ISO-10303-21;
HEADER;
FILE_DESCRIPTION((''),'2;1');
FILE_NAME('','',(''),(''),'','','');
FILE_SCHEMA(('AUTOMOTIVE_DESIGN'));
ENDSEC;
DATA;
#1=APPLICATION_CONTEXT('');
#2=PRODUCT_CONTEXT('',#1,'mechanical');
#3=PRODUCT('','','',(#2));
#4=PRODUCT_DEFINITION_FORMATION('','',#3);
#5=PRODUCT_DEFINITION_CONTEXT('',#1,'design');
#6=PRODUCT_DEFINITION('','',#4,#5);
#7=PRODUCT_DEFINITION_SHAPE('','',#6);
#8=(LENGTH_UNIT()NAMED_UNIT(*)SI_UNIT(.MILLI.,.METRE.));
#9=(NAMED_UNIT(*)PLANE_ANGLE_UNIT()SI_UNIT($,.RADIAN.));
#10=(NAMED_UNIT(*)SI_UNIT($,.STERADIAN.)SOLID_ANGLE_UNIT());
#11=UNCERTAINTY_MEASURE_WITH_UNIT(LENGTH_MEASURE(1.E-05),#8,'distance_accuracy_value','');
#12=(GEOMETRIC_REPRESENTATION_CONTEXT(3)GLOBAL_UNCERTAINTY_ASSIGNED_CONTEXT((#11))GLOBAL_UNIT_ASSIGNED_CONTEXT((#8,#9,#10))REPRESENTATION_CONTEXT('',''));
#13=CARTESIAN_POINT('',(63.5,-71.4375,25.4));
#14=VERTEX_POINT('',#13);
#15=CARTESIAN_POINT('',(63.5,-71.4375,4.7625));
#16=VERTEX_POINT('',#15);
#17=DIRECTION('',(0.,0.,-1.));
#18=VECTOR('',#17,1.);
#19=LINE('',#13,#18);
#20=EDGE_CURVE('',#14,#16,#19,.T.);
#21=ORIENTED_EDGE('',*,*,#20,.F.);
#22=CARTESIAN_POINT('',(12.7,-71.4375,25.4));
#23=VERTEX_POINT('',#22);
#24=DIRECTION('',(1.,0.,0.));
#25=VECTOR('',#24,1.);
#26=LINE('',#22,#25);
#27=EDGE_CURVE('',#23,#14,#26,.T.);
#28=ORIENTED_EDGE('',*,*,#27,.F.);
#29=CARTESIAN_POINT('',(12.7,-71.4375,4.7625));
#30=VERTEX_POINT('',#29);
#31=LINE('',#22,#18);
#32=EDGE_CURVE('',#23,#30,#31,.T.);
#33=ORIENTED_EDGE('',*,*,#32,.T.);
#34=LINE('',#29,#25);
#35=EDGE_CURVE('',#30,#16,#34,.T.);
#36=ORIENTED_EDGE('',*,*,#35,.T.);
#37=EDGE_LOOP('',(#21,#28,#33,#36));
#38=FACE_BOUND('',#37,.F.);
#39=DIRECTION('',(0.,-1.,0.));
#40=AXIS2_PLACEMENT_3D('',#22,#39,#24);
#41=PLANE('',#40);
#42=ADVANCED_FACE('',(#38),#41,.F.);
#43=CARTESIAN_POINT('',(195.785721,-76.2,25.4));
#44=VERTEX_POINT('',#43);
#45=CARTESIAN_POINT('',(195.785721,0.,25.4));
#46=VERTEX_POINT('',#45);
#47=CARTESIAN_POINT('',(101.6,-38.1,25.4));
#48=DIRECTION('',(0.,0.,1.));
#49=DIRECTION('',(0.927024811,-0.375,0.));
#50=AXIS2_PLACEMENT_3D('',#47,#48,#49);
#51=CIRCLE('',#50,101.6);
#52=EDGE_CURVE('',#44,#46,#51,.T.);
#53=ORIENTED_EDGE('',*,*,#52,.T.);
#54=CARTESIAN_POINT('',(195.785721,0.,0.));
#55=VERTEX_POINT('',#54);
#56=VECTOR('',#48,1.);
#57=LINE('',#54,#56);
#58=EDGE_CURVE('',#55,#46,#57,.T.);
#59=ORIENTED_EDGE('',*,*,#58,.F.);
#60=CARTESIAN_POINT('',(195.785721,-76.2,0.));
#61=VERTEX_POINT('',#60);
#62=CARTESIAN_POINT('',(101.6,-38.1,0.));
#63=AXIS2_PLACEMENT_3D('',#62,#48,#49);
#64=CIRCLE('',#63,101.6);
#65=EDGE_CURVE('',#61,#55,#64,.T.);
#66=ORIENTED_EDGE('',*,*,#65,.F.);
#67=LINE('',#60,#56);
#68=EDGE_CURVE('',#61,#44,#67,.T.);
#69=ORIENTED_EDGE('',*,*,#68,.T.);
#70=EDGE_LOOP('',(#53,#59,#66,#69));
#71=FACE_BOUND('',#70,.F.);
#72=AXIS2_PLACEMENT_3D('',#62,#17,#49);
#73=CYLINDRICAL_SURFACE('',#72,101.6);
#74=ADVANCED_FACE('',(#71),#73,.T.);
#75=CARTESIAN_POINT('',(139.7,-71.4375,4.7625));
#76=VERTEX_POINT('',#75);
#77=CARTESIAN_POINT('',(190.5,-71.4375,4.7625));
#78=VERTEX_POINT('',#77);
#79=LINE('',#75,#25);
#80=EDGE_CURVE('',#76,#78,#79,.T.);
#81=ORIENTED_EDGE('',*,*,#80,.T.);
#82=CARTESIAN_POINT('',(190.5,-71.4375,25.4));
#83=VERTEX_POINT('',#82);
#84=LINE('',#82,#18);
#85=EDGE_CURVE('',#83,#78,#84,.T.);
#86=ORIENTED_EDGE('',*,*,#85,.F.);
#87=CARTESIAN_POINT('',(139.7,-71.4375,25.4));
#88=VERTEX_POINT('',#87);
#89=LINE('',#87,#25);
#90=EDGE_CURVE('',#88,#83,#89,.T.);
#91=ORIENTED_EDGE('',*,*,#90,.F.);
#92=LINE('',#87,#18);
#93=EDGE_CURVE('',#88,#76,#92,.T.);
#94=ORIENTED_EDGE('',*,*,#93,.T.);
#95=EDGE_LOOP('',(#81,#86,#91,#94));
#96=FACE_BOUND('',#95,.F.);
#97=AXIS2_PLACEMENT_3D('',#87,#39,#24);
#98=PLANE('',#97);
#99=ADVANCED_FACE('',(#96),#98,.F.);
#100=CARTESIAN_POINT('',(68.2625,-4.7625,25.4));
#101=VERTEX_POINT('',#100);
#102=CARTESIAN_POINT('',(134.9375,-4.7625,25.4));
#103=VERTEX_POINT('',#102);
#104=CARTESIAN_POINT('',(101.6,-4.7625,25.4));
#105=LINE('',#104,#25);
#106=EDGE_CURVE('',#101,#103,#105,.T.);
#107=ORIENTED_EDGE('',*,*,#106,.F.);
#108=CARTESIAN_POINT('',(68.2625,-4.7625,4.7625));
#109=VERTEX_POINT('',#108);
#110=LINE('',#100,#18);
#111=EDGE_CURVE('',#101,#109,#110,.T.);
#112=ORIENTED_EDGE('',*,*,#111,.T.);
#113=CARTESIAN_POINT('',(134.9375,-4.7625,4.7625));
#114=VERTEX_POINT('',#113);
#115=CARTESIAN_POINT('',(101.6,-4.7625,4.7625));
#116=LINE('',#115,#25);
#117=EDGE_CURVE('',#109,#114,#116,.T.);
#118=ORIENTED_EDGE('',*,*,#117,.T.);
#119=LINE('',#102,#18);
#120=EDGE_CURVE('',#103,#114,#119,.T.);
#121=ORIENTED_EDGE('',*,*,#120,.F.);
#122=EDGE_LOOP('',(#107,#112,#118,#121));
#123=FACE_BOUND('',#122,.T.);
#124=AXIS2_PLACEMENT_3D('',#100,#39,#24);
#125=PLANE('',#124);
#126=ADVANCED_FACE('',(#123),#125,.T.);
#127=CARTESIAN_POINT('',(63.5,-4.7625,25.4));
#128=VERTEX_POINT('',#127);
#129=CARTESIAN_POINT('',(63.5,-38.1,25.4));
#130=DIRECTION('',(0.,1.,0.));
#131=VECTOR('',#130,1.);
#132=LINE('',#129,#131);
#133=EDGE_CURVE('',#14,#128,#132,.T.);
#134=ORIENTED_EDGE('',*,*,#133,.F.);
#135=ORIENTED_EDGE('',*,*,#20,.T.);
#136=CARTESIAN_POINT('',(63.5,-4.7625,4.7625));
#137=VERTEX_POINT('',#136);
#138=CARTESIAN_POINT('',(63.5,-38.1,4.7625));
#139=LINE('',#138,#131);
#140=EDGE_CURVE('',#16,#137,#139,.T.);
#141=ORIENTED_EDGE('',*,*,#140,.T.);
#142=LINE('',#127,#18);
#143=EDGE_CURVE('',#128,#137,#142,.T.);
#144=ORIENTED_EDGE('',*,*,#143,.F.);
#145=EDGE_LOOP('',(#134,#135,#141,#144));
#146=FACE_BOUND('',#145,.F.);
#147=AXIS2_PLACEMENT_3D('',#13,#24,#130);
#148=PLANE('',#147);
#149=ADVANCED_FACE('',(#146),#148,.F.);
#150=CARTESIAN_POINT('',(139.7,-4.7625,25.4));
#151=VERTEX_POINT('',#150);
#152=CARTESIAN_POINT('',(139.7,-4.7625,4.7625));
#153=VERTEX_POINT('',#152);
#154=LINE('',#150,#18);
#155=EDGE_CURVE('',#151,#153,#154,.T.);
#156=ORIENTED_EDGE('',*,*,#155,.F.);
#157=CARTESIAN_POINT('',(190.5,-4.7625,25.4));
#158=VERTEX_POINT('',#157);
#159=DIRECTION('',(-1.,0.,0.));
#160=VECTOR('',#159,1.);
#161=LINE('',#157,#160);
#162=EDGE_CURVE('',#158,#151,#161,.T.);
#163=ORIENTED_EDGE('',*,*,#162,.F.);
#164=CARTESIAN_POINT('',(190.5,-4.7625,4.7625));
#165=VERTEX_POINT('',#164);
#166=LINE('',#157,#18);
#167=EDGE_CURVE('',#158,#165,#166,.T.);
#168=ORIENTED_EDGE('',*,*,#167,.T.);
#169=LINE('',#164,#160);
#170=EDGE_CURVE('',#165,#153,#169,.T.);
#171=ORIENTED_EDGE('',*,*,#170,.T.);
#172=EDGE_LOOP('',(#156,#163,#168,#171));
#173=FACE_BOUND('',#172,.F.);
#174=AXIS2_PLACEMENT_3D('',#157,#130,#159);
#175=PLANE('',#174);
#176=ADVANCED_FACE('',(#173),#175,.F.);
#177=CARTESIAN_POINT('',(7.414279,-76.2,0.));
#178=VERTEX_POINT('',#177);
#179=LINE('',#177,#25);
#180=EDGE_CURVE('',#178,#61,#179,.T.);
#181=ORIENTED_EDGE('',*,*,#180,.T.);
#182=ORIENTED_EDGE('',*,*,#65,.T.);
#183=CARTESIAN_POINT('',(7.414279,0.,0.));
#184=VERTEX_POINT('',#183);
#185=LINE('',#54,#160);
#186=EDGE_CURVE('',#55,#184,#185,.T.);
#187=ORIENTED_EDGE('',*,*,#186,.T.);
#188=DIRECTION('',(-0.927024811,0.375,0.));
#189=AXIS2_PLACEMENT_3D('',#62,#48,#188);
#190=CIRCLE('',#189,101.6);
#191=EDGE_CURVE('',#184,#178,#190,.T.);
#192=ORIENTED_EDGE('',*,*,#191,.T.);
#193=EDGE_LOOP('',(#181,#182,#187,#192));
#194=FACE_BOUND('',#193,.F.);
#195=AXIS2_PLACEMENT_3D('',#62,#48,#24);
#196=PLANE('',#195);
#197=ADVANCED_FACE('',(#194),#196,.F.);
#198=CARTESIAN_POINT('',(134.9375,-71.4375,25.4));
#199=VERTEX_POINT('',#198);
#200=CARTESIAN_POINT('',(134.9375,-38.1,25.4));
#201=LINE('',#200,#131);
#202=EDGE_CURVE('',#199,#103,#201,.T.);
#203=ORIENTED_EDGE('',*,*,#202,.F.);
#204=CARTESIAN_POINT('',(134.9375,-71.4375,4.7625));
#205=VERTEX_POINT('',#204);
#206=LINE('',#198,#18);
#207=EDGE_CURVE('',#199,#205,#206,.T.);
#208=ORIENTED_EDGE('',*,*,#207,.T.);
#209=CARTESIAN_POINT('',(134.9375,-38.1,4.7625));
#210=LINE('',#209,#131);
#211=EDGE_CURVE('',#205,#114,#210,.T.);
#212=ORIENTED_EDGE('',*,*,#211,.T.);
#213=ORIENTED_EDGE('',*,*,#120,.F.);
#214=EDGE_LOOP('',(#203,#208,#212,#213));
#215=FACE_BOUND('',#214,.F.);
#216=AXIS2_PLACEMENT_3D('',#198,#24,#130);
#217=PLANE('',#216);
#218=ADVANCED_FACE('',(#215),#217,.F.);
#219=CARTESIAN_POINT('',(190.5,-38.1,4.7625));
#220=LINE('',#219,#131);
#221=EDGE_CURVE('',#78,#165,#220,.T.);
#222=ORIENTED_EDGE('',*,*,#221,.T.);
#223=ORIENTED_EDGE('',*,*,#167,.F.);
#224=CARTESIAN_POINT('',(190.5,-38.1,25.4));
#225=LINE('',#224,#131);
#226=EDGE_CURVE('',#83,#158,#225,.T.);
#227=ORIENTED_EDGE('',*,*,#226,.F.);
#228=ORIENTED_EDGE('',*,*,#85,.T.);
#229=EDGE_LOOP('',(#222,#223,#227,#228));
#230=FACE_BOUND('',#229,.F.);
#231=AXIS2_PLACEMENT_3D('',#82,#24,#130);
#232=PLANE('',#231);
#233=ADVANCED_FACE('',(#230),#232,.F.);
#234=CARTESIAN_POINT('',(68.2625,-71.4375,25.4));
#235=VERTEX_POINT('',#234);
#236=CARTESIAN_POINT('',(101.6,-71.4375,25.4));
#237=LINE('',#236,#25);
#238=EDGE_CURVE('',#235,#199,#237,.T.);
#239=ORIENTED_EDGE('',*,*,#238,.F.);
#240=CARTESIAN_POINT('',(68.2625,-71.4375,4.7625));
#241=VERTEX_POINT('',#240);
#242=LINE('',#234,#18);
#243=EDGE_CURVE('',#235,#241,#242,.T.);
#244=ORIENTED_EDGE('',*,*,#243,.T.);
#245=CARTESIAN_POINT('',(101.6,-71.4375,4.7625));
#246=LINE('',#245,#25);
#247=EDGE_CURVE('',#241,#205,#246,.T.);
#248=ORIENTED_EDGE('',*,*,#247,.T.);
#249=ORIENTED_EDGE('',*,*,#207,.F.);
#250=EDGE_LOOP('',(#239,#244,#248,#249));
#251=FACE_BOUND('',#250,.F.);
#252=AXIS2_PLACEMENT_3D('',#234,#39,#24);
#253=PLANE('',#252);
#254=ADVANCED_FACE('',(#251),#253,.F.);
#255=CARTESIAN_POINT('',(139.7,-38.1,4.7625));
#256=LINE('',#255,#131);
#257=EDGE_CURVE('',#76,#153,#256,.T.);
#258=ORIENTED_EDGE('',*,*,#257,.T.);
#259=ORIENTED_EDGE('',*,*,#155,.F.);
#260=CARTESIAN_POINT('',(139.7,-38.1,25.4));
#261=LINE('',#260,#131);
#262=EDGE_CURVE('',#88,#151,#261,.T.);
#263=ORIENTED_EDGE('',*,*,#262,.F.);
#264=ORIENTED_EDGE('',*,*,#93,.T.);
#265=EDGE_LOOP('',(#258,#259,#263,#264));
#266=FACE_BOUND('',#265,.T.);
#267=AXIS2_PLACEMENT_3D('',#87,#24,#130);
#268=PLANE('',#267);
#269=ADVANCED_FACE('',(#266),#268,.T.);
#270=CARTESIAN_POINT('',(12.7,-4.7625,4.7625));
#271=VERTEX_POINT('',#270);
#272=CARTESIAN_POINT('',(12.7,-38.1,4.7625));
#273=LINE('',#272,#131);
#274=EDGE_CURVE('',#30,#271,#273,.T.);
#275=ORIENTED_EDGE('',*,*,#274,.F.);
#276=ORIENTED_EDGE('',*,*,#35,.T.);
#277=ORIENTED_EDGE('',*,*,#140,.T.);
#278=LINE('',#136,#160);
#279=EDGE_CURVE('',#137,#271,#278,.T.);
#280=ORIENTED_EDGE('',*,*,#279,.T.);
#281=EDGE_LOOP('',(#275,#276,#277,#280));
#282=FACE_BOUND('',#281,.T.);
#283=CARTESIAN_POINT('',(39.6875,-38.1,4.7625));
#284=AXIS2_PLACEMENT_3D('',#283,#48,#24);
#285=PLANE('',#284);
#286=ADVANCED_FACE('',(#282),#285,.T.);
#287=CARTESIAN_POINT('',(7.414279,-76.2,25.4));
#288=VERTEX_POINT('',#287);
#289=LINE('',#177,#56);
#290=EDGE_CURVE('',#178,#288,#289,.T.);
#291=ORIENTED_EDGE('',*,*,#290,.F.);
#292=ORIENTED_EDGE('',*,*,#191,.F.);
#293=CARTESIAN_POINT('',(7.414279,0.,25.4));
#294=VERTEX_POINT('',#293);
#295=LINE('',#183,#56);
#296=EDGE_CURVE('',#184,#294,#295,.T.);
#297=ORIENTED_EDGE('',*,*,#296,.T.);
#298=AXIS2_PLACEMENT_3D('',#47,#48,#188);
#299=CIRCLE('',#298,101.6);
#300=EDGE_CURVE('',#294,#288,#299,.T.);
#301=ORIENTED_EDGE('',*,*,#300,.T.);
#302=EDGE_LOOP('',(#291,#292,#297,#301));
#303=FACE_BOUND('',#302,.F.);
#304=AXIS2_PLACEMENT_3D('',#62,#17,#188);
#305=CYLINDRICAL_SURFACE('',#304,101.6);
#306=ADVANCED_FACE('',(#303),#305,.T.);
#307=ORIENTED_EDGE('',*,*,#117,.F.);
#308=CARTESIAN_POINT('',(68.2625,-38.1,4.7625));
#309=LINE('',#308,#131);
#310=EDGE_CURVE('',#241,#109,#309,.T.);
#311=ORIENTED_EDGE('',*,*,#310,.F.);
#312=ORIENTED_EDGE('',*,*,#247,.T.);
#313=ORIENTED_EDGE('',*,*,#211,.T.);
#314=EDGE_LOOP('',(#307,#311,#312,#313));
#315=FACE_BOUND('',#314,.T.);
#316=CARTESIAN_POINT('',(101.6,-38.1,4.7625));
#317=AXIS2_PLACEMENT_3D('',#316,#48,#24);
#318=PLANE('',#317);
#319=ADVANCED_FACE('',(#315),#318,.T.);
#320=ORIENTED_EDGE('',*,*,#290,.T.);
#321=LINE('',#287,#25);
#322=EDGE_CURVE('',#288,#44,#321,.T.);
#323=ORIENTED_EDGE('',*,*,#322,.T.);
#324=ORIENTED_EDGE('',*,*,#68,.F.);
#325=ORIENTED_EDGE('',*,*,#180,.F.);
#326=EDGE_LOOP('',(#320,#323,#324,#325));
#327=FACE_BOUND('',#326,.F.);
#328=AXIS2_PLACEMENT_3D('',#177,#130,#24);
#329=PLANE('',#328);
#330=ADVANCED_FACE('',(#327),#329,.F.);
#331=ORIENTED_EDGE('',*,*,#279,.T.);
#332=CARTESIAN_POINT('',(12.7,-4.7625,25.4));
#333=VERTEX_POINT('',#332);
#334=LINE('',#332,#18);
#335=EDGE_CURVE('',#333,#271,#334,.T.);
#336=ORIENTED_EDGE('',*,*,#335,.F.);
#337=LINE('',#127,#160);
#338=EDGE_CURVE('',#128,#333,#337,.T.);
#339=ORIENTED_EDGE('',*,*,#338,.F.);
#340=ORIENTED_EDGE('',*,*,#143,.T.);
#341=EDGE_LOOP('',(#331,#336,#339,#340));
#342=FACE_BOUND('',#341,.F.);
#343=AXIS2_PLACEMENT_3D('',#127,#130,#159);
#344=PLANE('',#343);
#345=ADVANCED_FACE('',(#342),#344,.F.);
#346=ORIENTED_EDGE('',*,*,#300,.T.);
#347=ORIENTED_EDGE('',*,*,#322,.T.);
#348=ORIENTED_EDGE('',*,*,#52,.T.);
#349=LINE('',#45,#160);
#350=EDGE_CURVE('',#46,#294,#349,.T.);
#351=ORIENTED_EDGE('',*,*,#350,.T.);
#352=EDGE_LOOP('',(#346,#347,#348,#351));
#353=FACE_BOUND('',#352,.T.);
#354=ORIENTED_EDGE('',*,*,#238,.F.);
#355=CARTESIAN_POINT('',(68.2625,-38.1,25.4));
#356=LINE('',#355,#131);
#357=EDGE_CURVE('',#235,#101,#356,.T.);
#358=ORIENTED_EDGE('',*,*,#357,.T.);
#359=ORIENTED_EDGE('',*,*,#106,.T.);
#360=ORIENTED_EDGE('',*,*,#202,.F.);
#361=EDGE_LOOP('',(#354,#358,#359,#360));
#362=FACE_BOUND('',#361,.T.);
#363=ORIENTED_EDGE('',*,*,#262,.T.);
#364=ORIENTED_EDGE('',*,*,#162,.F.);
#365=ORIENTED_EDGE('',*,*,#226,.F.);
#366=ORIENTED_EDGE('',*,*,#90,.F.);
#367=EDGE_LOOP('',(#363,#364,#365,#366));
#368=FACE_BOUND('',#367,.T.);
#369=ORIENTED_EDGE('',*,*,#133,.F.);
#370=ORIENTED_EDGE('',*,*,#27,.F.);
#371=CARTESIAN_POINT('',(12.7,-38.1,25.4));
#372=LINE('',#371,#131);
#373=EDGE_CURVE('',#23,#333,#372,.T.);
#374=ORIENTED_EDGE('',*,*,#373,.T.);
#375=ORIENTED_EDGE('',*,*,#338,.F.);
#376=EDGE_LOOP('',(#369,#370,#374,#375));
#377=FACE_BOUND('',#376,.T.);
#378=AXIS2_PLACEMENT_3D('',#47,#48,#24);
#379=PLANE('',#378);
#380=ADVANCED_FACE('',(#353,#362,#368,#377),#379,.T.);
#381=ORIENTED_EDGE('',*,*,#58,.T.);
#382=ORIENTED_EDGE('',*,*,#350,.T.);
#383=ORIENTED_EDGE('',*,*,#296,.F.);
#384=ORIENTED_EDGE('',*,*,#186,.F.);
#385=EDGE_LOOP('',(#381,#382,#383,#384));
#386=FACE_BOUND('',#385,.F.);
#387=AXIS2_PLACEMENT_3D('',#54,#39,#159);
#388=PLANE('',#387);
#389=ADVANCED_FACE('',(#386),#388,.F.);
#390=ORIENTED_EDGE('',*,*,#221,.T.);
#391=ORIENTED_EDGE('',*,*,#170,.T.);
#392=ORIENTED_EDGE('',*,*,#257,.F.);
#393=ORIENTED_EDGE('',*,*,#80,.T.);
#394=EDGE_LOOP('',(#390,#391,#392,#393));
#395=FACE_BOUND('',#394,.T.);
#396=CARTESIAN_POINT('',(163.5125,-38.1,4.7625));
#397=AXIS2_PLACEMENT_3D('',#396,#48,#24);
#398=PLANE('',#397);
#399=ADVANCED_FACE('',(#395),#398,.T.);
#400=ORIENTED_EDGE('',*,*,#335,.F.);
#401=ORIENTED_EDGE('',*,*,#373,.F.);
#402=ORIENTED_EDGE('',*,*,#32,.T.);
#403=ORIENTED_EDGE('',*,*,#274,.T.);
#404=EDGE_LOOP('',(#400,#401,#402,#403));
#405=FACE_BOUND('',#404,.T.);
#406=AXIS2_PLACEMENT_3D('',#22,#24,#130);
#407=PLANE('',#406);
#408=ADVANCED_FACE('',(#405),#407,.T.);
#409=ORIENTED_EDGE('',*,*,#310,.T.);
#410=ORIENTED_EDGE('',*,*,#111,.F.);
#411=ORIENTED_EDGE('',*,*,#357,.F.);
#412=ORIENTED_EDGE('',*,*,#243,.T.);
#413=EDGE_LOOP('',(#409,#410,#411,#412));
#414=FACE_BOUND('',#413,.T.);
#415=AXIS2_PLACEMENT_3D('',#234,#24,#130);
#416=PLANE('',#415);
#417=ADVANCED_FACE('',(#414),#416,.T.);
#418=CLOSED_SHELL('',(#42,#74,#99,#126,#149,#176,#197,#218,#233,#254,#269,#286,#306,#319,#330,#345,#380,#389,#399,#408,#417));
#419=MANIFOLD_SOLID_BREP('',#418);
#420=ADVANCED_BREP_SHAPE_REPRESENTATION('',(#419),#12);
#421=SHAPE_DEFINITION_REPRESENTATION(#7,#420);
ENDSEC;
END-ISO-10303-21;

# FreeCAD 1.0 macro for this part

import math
import FreeCAD as App
import Part
import Sketcher
from FreeCAD import Vector
Q = App.Units.Quantity

doc = App.newDocument("Part")
body = doc.addObject("PartDesign::Body", "Body")

# Sketch on XY plane
sketch1 = body.newObject("Sketcher::SketchObject", "Sketch")
sketch1.AttachmentSupport = (doc.getObject("XY_Plane"), [""])
sketch1.MapMode = "FlatFace"
sketch1.addGeometry([
    Part.LineSegment(Vector(195.785721, 0, 0), Vector(7.414279, 0, 0)),
    Part.ArcOfCircle(Part.Circle(Vector(101.6, -38.1, 0), Vector(0, 0, 1), 101.6), math.radians(157.975687), math.radians(202.024313)),
    Part.LineSegment(Vector(7.414279, -76.2, 0), Vector(195.785721, -76.2, 0)),
    Part.ArcOfCircle(Part.Circle(Vector(101.6, -38.1, 0), Vector(0, 0, 1), 101.6), math.radians(-22.024313), math.radians(22.024313)),
], False)
sketch1.addConstraint([
    Sketcher.Constraint("Coincident", 0, 2, 1, 1),
    Sketcher.Constraint("Coincident", 1, 2, 2, 1),
    Sketcher.Constraint("Coincident", 2, 2, 3, 1),
    Sketcher.Constraint("Coincident", 3, 2, 0, 1),
    Sketcher.Constraint("Horizontal", 0),
    Sketcher.Constraint("Horizontal", 2),
    Sketcher.Constraint("Coincident", 3, 3, 1, 3),
    Sketcher.Constraint("Equal", 1, 3),
    Sketcher.Constraint("PointOnObject", 0, 2, -1),
    Sketcher.Constraint("Vertical", 0, 2, 1, 2),
    Sketcher.Constraint("Radius", 1, Q("4 in")),
    Sketcher.Constraint("DistanceX", -1, 1, 1, 3, Q("4 in")),
    Sketcher.Constraint("DistanceY", 1, 2, -1, 1, Q("3 in")),
])
pad1 = body.newObject("PartDesign::Pad", "Pad")
pad1.Profile = sketch1
pad1.Length = Q("1 in")

# Sketch on XY plane
sketch2 = body.newObject("Sketcher::SketchObject", "Sketch001")
sketch2.AttachmentSupport = (doc.getObject("XY_Plane"), [""])
sketch2.MapMode = "FlatFace"
sketch2.AttachmentOffset = App.Placement(Vector(0, 0, 1 * 25.4), App.Rotation())
sketch2.addGeometry([
    Part.LineSegment(Vector(63.5, -71.4375, 0), Vector(63.5, -4.7625, 0)),  # 0
    Part.LineSegment(Vector(63.5, -4.7625, 0), Vector(12.7, -4.7625, 0)),  # 1
    Part.LineSegment(Vector(12.7, -4.7625, 0), Vector(12.7, -71.4375, 0)),  # 2
    Part.LineSegment(Vector(12.7, -71.4375, 0), Vector(63.5, -71.4375, 0)),  # 3
    Part.LineSegment(Vector(68.2625, -4.7625, 0), Vector(68.2625, -71.4375, 0)),  # 4
    Part.LineSegment(Vector(68.2625, -71.4375, 0), Vector(134.9375, -71.4375, 0)),  # 5
    Part.LineSegment(Vector(134.9375, -71.4375, 0), Vector(134.9375, -4.7625, 0)),  # 6
    Part.LineSegment(Vector(134.9375, -4.7625, 0), Vector(68.2625, -4.7625, 0)),  # 7
    Part.LineSegment(Vector(139.7, -4.7625, 0), Vector(139.7, -71.4375, 0)),  # 8
    Part.LineSegment(Vector(139.7, -71.4375, 0), Vector(190.5, -71.4375, 0)),  # 9
    Part.LineSegment(Vector(190.5, -71.4375, 0), Vector(190.5, -4.7625, 0)),  # 10
    Part.LineSegment(Vector(190.5, -4.7625, 0), Vector(139.7, -4.7625, 0)),  # 11
], False)
sketch2.addConstraint([
    Sketcher.Constraint("Coincident", 0, 2, 1, 1),
    Sketcher.Constraint("Coincident", 1, 2, 2, 1),
    Sketcher.Constraint("Coincident", 2, 2, 3, 1),
    Sketcher.Constraint("Coincident", 3, 2, 0, 1),
    Sketcher.Constraint("Coincident", 4, 2, 5, 1),
    Sketcher.Constraint("Coincident", 5, 2, 6, 1),
    Sketcher.Constraint("Coincident", 6, 2, 7, 1),
    Sketcher.Constraint("Coincident", 7, 2, 4, 1),
    Sketcher.Constraint("Coincident", 8, 2, 9, 1),
    Sketcher.Constraint("Coincident", 9, 2, 10, 1),
    Sketcher.Constraint("Coincident", 10, 2, 11, 1),
    Sketcher.Constraint("Coincident", 11, 2, 8, 1),
    Sketcher.Constraint("Vertical", 0),
    Sketcher.Constraint("Horizontal", 1),
    Sketcher.Constraint("Vertical", 2),
    Sketcher.Constraint("Horizontal", 3),
    Sketcher.Constraint("Vertical", 4),
    Sketcher.Constraint("Horizontal", 5),
    Sketcher.Constraint("Vertical", 6),
    Sketcher.Constraint("Horizontal", 7),
    Sketcher.Constraint("Vertical", 8),
    Sketcher.Constraint("Horizontal", 9),
    Sketcher.Constraint("Vertical", 10),
    Sketcher.Constraint("Horizontal", 11),
    Sketcher.Constraint("Horizontal", 3, 2, 4, 2),
    Sketcher.Constraint("Horizontal", 1, 2, 6, 2),
    Sketcher.Constraint("Horizontal", 5, 2, 8, 2),
    Sketcher.Constraint("Horizontal", 7, 2, 10, 2),
    Sketcher.Constraint("Equal", 3, 9),
    Sketcher.Constraint("Equal", 7, 0),
    Sketcher.Constraint("DistanceX", 1, 2, 1, 1, Q("2 in")),
    Sketcher.Constraint("DistanceX", 3, 2, 8, 2, Q("3 in")),
    Sketcher.Constraint("DistanceX", -1, 1, 0, 2, Q("2.5 in")),
    Sketcher.Constraint("DistanceX", 5, 1, 5, 2, Q("2.625 in")),
    Sketcher.Constraint("DistanceY", 0, 2, -1, 1, Q("0.1875 in")),
    Sketcher.Constraint("DistanceX", -1, 1, 4, 2, Q("2.6875 in")),
])
pocket1 = body.newObject("PartDesign::Pocket", "Pocket")
pocket1.Profile = sketch2
pocket1.Length = Q("0.8125 in")

doc.recompute()
